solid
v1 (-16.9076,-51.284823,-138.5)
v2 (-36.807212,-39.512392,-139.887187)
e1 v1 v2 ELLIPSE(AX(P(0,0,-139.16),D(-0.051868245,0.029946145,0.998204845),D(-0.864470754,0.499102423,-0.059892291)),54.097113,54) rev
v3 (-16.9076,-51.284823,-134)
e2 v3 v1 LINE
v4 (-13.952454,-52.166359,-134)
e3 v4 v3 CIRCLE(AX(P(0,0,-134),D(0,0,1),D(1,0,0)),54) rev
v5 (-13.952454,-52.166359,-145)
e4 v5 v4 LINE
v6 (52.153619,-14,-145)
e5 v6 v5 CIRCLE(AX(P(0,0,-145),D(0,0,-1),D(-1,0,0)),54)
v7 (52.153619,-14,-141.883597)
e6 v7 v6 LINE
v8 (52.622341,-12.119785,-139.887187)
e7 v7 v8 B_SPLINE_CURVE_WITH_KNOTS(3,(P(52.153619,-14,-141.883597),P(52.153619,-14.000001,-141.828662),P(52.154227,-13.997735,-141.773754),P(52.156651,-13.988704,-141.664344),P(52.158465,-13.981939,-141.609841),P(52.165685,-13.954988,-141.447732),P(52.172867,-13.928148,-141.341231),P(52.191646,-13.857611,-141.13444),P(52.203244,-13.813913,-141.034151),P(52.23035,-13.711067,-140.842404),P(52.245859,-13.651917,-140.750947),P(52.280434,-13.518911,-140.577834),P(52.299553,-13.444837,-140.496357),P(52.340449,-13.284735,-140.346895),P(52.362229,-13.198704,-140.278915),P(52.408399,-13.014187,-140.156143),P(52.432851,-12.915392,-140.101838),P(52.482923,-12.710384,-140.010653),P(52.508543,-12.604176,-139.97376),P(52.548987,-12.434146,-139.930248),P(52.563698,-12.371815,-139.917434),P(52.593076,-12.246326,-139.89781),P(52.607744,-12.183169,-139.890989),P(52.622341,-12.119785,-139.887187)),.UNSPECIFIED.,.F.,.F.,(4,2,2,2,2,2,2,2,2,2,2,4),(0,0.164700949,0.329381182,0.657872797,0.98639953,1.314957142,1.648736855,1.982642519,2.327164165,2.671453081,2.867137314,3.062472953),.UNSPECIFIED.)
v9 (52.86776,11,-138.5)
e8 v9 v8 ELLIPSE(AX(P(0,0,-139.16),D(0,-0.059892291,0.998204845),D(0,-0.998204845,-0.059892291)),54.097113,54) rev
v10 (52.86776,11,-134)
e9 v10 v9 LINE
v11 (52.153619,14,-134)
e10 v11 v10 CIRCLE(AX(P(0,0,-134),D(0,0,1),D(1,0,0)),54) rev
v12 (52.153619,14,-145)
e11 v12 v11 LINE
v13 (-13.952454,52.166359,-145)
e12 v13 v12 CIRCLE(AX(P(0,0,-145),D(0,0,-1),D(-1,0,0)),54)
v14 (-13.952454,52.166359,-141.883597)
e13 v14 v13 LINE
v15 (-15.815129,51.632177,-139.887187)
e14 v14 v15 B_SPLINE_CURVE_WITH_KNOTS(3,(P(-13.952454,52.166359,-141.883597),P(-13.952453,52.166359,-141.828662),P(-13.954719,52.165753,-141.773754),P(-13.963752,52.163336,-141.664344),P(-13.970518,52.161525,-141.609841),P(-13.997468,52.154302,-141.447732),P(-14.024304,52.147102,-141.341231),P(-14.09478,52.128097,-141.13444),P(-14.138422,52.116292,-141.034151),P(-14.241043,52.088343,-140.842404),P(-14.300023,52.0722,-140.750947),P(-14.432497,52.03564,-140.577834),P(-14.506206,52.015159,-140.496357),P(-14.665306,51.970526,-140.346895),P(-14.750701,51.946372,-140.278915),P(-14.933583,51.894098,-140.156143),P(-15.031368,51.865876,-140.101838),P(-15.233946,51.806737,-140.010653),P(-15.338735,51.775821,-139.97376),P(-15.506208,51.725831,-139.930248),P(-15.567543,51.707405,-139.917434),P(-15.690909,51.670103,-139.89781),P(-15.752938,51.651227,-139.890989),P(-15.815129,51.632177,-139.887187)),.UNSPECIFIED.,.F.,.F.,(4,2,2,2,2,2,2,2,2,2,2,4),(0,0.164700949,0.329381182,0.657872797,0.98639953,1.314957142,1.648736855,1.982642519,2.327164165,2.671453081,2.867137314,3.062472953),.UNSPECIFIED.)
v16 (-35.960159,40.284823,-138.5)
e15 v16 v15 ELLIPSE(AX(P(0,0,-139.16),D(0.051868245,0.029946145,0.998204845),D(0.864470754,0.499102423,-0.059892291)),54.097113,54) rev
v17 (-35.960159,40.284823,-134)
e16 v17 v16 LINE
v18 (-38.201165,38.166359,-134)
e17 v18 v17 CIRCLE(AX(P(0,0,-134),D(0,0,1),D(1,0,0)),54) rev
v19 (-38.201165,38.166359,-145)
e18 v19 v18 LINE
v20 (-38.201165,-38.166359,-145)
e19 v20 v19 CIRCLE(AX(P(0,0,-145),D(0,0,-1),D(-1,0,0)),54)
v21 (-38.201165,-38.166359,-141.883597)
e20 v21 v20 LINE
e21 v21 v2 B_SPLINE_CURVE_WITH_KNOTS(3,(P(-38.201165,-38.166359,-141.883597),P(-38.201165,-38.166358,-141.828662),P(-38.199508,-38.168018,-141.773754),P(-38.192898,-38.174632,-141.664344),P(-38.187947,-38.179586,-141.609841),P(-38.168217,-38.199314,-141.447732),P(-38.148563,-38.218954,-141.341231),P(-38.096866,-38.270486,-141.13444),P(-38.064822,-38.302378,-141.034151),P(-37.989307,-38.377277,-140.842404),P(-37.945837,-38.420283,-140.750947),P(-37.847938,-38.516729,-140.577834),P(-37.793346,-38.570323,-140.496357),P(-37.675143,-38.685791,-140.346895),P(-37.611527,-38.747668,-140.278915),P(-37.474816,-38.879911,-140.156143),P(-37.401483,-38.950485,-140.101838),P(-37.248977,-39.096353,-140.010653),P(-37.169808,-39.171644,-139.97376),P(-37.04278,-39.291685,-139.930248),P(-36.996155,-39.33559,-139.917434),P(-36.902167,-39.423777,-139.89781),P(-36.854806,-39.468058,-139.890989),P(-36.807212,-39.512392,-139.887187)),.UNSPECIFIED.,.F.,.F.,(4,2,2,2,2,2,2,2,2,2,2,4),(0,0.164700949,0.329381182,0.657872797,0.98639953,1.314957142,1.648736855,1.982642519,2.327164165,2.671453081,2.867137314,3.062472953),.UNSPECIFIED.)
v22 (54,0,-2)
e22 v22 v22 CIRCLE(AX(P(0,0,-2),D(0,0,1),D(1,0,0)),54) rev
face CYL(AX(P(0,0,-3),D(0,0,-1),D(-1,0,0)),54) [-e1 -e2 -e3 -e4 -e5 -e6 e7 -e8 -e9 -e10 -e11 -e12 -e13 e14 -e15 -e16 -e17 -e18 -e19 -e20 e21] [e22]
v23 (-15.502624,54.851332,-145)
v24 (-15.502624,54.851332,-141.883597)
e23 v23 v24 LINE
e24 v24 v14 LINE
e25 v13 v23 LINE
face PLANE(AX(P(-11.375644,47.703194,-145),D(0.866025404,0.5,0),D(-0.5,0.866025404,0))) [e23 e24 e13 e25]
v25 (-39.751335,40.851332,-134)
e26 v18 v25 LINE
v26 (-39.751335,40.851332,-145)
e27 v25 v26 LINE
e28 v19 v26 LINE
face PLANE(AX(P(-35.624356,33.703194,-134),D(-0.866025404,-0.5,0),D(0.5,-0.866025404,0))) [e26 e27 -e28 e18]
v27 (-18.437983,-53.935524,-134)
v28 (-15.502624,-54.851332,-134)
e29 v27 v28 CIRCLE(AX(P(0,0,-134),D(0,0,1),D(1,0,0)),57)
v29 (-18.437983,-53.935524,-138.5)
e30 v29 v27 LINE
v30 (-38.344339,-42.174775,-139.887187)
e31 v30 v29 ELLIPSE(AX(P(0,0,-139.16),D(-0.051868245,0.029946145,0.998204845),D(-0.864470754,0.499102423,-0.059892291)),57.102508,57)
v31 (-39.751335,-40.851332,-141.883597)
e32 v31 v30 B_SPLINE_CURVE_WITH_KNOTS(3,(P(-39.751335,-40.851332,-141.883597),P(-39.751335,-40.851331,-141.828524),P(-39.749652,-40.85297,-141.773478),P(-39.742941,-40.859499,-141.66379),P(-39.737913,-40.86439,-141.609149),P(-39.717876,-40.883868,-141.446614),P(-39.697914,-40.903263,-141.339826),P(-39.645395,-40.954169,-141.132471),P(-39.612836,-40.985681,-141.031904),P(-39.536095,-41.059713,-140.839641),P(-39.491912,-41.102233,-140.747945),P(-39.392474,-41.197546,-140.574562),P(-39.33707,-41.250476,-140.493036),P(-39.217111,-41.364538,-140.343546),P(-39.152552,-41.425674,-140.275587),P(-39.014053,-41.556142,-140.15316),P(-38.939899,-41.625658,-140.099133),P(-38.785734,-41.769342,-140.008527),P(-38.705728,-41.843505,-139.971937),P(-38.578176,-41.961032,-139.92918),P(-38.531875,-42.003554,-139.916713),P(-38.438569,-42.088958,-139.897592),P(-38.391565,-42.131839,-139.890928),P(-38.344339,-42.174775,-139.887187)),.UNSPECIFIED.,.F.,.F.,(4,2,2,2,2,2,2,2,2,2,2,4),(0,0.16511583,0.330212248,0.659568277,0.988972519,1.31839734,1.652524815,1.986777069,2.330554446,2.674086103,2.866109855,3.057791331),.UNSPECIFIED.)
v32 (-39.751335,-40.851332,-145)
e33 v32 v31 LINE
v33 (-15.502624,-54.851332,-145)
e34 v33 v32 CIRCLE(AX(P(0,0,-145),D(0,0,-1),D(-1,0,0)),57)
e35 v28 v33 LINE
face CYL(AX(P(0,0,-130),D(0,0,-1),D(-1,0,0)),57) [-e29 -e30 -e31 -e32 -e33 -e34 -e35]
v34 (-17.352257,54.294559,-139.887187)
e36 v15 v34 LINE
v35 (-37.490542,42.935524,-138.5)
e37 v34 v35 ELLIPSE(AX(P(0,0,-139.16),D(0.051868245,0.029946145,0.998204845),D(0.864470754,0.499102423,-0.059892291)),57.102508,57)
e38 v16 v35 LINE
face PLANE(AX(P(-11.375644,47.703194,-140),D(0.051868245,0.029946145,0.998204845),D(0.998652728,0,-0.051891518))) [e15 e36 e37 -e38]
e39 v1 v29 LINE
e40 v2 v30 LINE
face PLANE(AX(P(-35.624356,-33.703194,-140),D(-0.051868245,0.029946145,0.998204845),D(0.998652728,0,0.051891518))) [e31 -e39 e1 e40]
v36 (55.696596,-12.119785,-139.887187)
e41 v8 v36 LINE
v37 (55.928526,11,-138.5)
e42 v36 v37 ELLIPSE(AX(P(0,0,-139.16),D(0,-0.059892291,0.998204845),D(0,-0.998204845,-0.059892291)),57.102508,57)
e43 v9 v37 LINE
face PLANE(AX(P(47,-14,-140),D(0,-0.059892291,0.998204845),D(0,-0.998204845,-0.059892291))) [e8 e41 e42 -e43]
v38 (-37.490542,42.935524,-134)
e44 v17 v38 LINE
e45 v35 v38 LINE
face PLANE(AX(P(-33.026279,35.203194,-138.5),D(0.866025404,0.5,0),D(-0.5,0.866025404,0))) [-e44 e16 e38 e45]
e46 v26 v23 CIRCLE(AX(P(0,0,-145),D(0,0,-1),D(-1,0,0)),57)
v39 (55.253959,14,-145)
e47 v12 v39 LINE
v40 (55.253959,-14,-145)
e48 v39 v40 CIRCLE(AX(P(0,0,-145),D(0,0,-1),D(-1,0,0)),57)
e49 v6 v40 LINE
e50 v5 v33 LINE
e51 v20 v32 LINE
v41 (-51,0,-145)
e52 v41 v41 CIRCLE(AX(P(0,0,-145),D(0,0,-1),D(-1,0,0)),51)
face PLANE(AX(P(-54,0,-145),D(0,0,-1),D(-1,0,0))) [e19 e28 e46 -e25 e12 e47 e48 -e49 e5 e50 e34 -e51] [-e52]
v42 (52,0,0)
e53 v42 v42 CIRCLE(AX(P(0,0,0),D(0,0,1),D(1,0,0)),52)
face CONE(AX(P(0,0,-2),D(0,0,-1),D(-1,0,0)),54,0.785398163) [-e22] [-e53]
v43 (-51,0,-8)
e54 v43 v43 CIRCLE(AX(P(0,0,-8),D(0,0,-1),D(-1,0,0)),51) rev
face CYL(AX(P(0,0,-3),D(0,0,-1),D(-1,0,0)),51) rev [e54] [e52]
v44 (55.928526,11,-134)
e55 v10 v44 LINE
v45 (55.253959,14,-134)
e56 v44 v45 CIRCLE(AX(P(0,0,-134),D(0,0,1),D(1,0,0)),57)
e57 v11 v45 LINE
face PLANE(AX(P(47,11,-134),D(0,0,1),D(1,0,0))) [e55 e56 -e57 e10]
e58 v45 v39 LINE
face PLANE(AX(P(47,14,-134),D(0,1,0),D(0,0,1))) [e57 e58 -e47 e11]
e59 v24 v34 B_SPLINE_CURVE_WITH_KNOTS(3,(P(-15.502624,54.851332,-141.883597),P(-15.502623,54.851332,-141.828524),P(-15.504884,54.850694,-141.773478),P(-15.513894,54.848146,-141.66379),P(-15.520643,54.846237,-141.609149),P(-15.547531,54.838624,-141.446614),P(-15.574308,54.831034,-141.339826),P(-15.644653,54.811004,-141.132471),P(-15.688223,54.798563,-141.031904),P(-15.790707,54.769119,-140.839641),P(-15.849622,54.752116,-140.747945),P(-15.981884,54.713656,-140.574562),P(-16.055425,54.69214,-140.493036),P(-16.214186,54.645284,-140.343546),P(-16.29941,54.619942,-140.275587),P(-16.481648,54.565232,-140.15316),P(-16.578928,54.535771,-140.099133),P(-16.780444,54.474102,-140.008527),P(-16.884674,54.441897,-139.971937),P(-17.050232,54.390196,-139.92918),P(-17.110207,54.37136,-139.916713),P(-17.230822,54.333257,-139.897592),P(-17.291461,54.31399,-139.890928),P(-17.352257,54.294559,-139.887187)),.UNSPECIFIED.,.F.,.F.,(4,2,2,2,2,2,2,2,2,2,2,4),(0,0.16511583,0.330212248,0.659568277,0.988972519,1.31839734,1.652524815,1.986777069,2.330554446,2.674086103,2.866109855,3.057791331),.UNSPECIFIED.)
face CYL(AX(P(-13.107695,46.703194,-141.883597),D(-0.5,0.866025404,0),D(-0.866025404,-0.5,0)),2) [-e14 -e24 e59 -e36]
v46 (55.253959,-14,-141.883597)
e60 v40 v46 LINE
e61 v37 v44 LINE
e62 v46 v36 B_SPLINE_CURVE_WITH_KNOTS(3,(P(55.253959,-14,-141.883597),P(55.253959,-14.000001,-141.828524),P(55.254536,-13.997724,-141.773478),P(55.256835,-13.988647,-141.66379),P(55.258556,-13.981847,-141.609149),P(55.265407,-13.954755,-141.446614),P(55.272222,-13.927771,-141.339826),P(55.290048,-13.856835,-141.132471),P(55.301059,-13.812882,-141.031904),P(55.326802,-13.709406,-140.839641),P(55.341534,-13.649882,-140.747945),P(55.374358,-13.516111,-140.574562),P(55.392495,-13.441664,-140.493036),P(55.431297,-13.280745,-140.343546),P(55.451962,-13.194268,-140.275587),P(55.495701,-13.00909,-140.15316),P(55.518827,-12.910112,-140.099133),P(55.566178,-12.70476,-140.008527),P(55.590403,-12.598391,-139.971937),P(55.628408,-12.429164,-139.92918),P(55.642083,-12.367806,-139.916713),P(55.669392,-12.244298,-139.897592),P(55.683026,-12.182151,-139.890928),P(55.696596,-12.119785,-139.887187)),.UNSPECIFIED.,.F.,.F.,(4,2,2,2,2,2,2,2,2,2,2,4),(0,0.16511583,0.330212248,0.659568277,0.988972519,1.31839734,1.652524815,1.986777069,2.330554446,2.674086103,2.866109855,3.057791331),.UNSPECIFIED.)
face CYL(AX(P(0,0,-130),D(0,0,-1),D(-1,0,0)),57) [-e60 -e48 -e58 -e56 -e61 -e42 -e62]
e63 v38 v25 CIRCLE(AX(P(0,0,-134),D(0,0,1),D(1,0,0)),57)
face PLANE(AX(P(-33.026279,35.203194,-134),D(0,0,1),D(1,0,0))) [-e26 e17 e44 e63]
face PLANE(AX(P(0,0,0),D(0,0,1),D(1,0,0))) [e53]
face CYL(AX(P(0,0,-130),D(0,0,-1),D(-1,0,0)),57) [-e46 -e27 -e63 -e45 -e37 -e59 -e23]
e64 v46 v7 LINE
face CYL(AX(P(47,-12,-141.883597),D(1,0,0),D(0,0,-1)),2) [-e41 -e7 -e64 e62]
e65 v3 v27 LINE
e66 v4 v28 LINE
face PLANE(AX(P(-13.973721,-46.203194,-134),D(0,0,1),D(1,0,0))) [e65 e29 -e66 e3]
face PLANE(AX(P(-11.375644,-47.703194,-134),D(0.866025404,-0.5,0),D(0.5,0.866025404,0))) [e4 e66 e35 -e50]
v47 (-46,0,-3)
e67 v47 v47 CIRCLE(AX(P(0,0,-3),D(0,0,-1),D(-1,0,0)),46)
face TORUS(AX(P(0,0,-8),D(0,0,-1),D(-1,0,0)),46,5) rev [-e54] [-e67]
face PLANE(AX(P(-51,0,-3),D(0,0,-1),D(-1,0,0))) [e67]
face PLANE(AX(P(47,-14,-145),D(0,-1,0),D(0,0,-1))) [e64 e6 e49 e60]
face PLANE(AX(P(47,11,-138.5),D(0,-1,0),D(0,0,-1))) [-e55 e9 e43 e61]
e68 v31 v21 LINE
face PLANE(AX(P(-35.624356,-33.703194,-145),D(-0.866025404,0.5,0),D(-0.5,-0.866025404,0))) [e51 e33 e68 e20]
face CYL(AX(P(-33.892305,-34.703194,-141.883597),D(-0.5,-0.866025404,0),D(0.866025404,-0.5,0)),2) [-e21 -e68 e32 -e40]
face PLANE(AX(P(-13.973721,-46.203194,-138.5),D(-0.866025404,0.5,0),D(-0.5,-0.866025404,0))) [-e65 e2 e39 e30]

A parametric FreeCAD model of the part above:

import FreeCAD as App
import Part
import Sketcher


def edges_at(feature, points):
    """Names of the edges that pass closest to the given points."""
    edges = feature.Shape.Edges
    near = lambda p: min(range(len(edges)), key=lambda i: edges[i].distToShape(Part.Vertex(*p))[0])
    return sorted({f"Edge{near(p) + 1}" for p in points})

doc = App.newDocument("Part")
body = doc.addObject("PartDesign::Body", "Body")

# Sketch on XZ plane
sketch1 = body.newObject("Sketcher::SketchObject", "Sketch")
sketch1.AttachmentSupport = (doc.getObject("XZ_Plane"), [""])
sketch1.MapMode = "FlatFace"
sketch1.addGeometry([
    Part.LineSegment(App.Vector(-54, 0, 0), App.Vector(0, 0, 0)),  # 0
    Part.LineSegment(App.Vector(0, 0, 0), App.Vector(0, -3, 0)),  # 1
    Part.LineSegment(App.Vector(0, -3, 0), App.Vector(-51, -3, 0)),  # 2
    Part.LineSegment(App.Vector(-51, -3, 0), App.Vector(-51, -145, 0)),  # 3
    Part.LineSegment(App.Vector(-51, -145, 0), App.Vector(-54, -145, 0)),  # 4
    Part.LineSegment(App.Vector(-54, -145, 0), App.Vector(-54, 0, 0)),  # 5
], False)
sketch1.addConstraint([
    Sketcher.Constraint("Coincident", 0, 2, 1, 1),
    Sketcher.Constraint("Coincident", 1, 2, 2, 1),
    Sketcher.Constraint("Coincident", 2, 2, 3, 1),
    Sketcher.Constraint("Coincident", 3, 2, 4, 1),
    Sketcher.Constraint("Coincident", 4, 2, 5, 1),
    Sketcher.Constraint("Coincident", 5, 2, 0, 1),
    Sketcher.Constraint("Horizontal", 0),
    Sketcher.Constraint("Vertical", 1),
    Sketcher.Constraint("Horizontal", 2),
    Sketcher.Constraint("Vertical", 3),
    Sketcher.Constraint("Horizontal", 4),
    Sketcher.Constraint("Vertical", 5),
    Sketcher.Constraint("Coincident", 0, 2, -1, 1),
    Sketcher.Constraint("Equal", 4, 1),
    Sketcher.Constraint("DistanceX", 0, 1, 0, 2, 54.0),
    Sketcher.Constraint("DistanceX", 2, 2, 2, 1, 51.0),
    Sketcher.Constraint("DistanceY", 3, 2, 3, 1, 142.0),
])
revolution = body.newObject("PartDesign::Revolution", "Revolution")
revolution.Profile = sketch1
revolution.ReferenceAxis = (sketch1, ["V_Axis"])
revolution.Angle = 360

# Sketch on YZ plane
sketch2 = body.newObject("Sketcher::SketchObject", "Sketch001")
sketch2.AttachmentSupport = (doc.getObject("YZ_Plane"), [""])
sketch2.MapMode = "FlatFace"
sketch2.AttachmentOffset = App.Placement(App.Vector(0, 0, 57), App.Rotation())
sketch2.addGeometry([
    Part.LineSegment(App.Vector(-14, -145, 0), App.Vector(14, -145, 0)),  # 0
    Part.LineSegment(App.Vector(14, -145, 0), App.Vector(14, -134, 0)),  # 1
    Part.LineSegment(App.Vector(14, -134, 0), App.Vector(11, -134, 0)),  # 2
    Part.LineSegment(App.Vector(11, -134, 0), App.Vector(11, -138.5, 0)),  # 3
    Part.LineSegment(App.Vector(11, -138.5, 0), App.Vector(-14, -140, 0)),  # 4
    Part.LineSegment(App.Vector(-14, -140, 0), App.Vector(-14, -145, 0)),  # 5
], False)
sketch2.addConstraint([
    Sketcher.Constraint("Coincident", 0, 2, 1, 1),
    Sketcher.Constraint("Coincident", 1, 2, 2, 1),
    Sketcher.Constraint("Coincident", 2, 2, 3, 1),
    Sketcher.Constraint("Coincident", 3, 2, 4, 1),
    Sketcher.Constraint("Coincident", 4, 2, 5, 1),
    Sketcher.Constraint("Coincident", 5, 2, 0, 1),
    Sketcher.Constraint("Horizontal", 0),
    Sketcher.Constraint("Vertical", 1),
    Sketcher.Constraint("Horizontal", 2),
    Sketcher.Constraint("Vertical", 3),
    Sketcher.Constraint("Vertical", 5),
    Sketcher.Constraint("DistanceX", 0, 1, 0, 2, 28.0),
    Sketcher.Constraint("DistanceX", 2, 2, 2, 1, 3.0),
    Sketcher.Constraint("DistanceY", 1, 1, 1, 2, 11.0),
    Sketcher.Constraint("DistanceY", 5, 2, 5, 1, 5.0),
    Sketcher.Constraint("DistanceY", 3, 2, 3, 1, 4.5),
    Sketcher.Constraint("DistanceX", -1, 1, 0, 2, 14.0),
    Sketcher.Constraint("DistanceY", 0, 2, -1, 1, 145.0),
])
pad1 = body.newObject("PartDesign::Pad", "Pad")
pad1.Profile = sketch2
pad1.Length = 10
pad1.Reversed = True
doc.recompute()

fillet = body.newObject("PartDesign::Fillet", "Fillet")
fillet.Base = (pad1, edges_at(pad1, [(54.577, -14, -140)]))
fillet.Radius = 2
doc.recompute()

polarpattern = body.newObject("PartDesign::PolarPattern", "PolarPattern")
polarpattern.Originals = [pad1]
polarpattern.Axis = (doc.getObject("Z_Axis"), [""])
polarpattern.Angle = 360
polarpattern.Occurrences = 3
body.Tip = polarpattern
doc.recompute()

fillet2 = body.newObject("PartDesign::Fillet", "Fillet001")
fillet2.Base = (polarpattern, edges_at(polarpattern, [(-15.164, 54.265, -140), (-39.413, -40.265, -140)]))
fillet2.Radius = 2

# Sketch on XY plane
sketch3 = body.newObject("Sketcher::SketchObject", "Sketch002")
sketch3.AttachmentSupport = (doc.getObject("XY_Plane"), [""])
sketch3.MapMode = "FlatFace"
sketch3.AttachmentOffset = App.Placement(App.Vector(0, 0, -130), App.Rotation())
sketch3.addGeometry(Part.Circle(App.Vector(0, 0, 0), App.Vector(0, 0, 1), 51), False)
sketch3.addConstraint([
    Sketcher.Constraint("Coincident", 0, 3, -1, 1),
    Sketcher.Constraint("Diameter", 0, 102.0),
])
pocket1 = body.newObject("PartDesign::Pocket", "Pocket")
pocket1.Profile = sketch3
pocket1.Length = 15

# Sketch on XY plane
sketch4 = body.newObject("Sketcher::SketchObject", "Sketch003")
sketch4.AttachmentSupport = (doc.getObject("XY_Plane"), [""])
sketch4.MapMode = "FlatFace"
sketch4.AttachmentOffset = App.Placement(App.Vector(0, 0, -145), App.Rotation())
sketch4.addGeometry([
    Part.Circle(App.Vector(0, 0, 0), App.Vector(0, 0, 1), 63),
    Part.Circle(App.Vector(0, 0, 0), App.Vector(0, 0, 1), 57),
], False)
sketch4.addConstraint([
    Sketcher.Constraint("Coincident", 0, 3, -1, 1),
    Sketcher.Constraint("Coincident", 1, 3, -1, 1),
    Sketcher.Constraint("Diameter", 1, 114.0),
    Sketcher.Constraint("Diameter", 0, 125.23744),
])
pocket2 = body.newObject("PartDesign::Pocket", "Pocket001")
pocket2.Profile = sketch4
pocket2.Length = 15
pocket2.Reversed = True
doc.recompute()

chamfer = body.newObject("PartDesign::Chamfer", "Chamfer")
chamfer.Base = (pocket2, edges_at(pocket2, [(54, 0, 0)]))
chamfer.Size = 2
doc.recompute()

fillet3 = body.newObject("PartDesign::Fillet", "Fillet002")
fillet3.Base = (chamfer, edges_at(chamfer, [(51, 0, -3)]))
fillet3.Radius = 5

doc.recompute()
